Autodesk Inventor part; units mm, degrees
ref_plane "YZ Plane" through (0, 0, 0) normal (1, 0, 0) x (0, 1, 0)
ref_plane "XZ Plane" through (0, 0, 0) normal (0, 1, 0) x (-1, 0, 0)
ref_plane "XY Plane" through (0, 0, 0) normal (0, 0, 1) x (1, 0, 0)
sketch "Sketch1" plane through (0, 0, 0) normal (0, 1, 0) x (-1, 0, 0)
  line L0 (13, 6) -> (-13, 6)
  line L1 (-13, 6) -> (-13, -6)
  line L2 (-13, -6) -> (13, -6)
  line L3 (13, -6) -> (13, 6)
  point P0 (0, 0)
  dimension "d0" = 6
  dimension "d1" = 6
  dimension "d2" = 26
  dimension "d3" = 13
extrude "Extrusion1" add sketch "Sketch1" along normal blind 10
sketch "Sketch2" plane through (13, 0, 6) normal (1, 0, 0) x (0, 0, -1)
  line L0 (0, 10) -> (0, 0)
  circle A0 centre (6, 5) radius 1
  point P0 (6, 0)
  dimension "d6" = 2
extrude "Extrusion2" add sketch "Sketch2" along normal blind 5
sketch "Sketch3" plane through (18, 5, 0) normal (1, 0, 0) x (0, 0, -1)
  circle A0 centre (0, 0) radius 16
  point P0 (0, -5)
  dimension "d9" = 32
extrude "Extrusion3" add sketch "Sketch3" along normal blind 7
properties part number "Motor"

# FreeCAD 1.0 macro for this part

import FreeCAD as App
import Part
import Sketcher
from FreeCAD import Vector
Q = App.Units.Quantity


def add_polygon(sketch, points):
    """Adds a closed chain of lines whose ends are joined by coincident constraints."""
    first, n = sketch.GeometryCount, len(points)
    for a, b in zip(points, points[1:] + points[:1]):
        sketch.addGeometry(Part.LineSegment(App.Vector(*a, 0), App.Vector(*b, 0)), False)
    for i in range(n):
        sketch.addConstraint(Sketcher.Constraint("Coincident", first + i, 2, first + (i + 1) % n, 1))

doc = App.newDocument("Part")
body = doc.addObject("PartDesign::Body", "Body")

# Sketch on XZ plane
sketch1 = body.newObject("Sketcher::SketchObject", "Sketch")
sketch1.AttachmentSupport = (doc.getObject("XZ_Plane"), [""])
sketch1.MapMode = "FlatFace"
add_polygon(sketch1, [(-13, -6), (-13, 6), (13, 6), (13, -6)])  # lines 0-3
sketch1.addConstraint(Sketcher.Constraint("Vertical", 0))
sketch1.addConstraint(Sketcher.Constraint("Horizontal", 1))
sketch1.addConstraint(Sketcher.Constraint("Vertical", 2))
sketch1.addConstraint(Sketcher.Constraint("Horizontal", 3))
sketch1.addConstraint(Sketcher.Constraint("Symmetric", 0, 2, 2, 2, -1, 1))
sketch1.addConstraint(Sketcher.Constraint("DistanceX", 1, 1, 1, 2, Q("26 mm")))
sketch1.addConstraint(Sketcher.Constraint("DistanceY", -1, 1, 0, 2, Q("6 mm")))
pad1 = body.newObject("PartDesign::Pad", "Pad")
pad1.Profile = sketch1
pad1.Length = 10
pad1.Reversed = True

# Sketch on YZ plane
sketch2 = body.newObject("Sketcher::SketchObject", "Sketch001")
sketch2.AttachmentSupport = (doc.getObject("YZ_Plane"), [""])
sketch2.MapMode = "FlatFace"
sketch2.AttachmentOffset = App.Placement(Vector(0, 0, 13), App.Rotation())
sketch2.addGeometry(Part.Circle(Vector(5, 0, 0), Vector(0, 0, 1), 1), False)
sketch2.addConstraint(Sketcher.Constraint("PointOnObject", 0, 3, -1))
sketch2.addConstraint(Sketcher.Constraint("Diameter", 0, Q("2 mm")))
sketch2.addConstraint(Sketcher.Constraint("DistanceX", -1, 1, 0, 3, Q("5 mm")))
pad2 = body.newObject("PartDesign::Pad", "Pad001")
pad2.Profile = sketch2
pad2.Length = 5

# Sketch on YZ plane
sketch3 = body.newObject("Sketcher::SketchObject", "Sketch002")
sketch3.AttachmentSupport = (doc.getObject("YZ_Plane"), [""])
sketch3.MapMode = "FlatFace"
sketch3.AttachmentOffset = App.Placement(Vector(0, 0, 18), App.Rotation())
sketch3.addGeometry(Part.Circle(Vector(5, 0, 0), Vector(0, 0, 1), 16), False)
sketch3.addConstraint(Sketcher.Constraint("PointOnObject", 0, 3, -1))
sketch3.addConstraint(Sketcher.Constraint("Diameter", 0, Q("32 mm")))
sketch3.addConstraint(Sketcher.Constraint("DistanceX", -1, 1, 0, 3, Q("5 mm")))
pad3 = body.newObject("PartDesign::Pad", "Pad002")
pad3.Profile = sketch3
pad3.Length = 7

doc.recompute()
